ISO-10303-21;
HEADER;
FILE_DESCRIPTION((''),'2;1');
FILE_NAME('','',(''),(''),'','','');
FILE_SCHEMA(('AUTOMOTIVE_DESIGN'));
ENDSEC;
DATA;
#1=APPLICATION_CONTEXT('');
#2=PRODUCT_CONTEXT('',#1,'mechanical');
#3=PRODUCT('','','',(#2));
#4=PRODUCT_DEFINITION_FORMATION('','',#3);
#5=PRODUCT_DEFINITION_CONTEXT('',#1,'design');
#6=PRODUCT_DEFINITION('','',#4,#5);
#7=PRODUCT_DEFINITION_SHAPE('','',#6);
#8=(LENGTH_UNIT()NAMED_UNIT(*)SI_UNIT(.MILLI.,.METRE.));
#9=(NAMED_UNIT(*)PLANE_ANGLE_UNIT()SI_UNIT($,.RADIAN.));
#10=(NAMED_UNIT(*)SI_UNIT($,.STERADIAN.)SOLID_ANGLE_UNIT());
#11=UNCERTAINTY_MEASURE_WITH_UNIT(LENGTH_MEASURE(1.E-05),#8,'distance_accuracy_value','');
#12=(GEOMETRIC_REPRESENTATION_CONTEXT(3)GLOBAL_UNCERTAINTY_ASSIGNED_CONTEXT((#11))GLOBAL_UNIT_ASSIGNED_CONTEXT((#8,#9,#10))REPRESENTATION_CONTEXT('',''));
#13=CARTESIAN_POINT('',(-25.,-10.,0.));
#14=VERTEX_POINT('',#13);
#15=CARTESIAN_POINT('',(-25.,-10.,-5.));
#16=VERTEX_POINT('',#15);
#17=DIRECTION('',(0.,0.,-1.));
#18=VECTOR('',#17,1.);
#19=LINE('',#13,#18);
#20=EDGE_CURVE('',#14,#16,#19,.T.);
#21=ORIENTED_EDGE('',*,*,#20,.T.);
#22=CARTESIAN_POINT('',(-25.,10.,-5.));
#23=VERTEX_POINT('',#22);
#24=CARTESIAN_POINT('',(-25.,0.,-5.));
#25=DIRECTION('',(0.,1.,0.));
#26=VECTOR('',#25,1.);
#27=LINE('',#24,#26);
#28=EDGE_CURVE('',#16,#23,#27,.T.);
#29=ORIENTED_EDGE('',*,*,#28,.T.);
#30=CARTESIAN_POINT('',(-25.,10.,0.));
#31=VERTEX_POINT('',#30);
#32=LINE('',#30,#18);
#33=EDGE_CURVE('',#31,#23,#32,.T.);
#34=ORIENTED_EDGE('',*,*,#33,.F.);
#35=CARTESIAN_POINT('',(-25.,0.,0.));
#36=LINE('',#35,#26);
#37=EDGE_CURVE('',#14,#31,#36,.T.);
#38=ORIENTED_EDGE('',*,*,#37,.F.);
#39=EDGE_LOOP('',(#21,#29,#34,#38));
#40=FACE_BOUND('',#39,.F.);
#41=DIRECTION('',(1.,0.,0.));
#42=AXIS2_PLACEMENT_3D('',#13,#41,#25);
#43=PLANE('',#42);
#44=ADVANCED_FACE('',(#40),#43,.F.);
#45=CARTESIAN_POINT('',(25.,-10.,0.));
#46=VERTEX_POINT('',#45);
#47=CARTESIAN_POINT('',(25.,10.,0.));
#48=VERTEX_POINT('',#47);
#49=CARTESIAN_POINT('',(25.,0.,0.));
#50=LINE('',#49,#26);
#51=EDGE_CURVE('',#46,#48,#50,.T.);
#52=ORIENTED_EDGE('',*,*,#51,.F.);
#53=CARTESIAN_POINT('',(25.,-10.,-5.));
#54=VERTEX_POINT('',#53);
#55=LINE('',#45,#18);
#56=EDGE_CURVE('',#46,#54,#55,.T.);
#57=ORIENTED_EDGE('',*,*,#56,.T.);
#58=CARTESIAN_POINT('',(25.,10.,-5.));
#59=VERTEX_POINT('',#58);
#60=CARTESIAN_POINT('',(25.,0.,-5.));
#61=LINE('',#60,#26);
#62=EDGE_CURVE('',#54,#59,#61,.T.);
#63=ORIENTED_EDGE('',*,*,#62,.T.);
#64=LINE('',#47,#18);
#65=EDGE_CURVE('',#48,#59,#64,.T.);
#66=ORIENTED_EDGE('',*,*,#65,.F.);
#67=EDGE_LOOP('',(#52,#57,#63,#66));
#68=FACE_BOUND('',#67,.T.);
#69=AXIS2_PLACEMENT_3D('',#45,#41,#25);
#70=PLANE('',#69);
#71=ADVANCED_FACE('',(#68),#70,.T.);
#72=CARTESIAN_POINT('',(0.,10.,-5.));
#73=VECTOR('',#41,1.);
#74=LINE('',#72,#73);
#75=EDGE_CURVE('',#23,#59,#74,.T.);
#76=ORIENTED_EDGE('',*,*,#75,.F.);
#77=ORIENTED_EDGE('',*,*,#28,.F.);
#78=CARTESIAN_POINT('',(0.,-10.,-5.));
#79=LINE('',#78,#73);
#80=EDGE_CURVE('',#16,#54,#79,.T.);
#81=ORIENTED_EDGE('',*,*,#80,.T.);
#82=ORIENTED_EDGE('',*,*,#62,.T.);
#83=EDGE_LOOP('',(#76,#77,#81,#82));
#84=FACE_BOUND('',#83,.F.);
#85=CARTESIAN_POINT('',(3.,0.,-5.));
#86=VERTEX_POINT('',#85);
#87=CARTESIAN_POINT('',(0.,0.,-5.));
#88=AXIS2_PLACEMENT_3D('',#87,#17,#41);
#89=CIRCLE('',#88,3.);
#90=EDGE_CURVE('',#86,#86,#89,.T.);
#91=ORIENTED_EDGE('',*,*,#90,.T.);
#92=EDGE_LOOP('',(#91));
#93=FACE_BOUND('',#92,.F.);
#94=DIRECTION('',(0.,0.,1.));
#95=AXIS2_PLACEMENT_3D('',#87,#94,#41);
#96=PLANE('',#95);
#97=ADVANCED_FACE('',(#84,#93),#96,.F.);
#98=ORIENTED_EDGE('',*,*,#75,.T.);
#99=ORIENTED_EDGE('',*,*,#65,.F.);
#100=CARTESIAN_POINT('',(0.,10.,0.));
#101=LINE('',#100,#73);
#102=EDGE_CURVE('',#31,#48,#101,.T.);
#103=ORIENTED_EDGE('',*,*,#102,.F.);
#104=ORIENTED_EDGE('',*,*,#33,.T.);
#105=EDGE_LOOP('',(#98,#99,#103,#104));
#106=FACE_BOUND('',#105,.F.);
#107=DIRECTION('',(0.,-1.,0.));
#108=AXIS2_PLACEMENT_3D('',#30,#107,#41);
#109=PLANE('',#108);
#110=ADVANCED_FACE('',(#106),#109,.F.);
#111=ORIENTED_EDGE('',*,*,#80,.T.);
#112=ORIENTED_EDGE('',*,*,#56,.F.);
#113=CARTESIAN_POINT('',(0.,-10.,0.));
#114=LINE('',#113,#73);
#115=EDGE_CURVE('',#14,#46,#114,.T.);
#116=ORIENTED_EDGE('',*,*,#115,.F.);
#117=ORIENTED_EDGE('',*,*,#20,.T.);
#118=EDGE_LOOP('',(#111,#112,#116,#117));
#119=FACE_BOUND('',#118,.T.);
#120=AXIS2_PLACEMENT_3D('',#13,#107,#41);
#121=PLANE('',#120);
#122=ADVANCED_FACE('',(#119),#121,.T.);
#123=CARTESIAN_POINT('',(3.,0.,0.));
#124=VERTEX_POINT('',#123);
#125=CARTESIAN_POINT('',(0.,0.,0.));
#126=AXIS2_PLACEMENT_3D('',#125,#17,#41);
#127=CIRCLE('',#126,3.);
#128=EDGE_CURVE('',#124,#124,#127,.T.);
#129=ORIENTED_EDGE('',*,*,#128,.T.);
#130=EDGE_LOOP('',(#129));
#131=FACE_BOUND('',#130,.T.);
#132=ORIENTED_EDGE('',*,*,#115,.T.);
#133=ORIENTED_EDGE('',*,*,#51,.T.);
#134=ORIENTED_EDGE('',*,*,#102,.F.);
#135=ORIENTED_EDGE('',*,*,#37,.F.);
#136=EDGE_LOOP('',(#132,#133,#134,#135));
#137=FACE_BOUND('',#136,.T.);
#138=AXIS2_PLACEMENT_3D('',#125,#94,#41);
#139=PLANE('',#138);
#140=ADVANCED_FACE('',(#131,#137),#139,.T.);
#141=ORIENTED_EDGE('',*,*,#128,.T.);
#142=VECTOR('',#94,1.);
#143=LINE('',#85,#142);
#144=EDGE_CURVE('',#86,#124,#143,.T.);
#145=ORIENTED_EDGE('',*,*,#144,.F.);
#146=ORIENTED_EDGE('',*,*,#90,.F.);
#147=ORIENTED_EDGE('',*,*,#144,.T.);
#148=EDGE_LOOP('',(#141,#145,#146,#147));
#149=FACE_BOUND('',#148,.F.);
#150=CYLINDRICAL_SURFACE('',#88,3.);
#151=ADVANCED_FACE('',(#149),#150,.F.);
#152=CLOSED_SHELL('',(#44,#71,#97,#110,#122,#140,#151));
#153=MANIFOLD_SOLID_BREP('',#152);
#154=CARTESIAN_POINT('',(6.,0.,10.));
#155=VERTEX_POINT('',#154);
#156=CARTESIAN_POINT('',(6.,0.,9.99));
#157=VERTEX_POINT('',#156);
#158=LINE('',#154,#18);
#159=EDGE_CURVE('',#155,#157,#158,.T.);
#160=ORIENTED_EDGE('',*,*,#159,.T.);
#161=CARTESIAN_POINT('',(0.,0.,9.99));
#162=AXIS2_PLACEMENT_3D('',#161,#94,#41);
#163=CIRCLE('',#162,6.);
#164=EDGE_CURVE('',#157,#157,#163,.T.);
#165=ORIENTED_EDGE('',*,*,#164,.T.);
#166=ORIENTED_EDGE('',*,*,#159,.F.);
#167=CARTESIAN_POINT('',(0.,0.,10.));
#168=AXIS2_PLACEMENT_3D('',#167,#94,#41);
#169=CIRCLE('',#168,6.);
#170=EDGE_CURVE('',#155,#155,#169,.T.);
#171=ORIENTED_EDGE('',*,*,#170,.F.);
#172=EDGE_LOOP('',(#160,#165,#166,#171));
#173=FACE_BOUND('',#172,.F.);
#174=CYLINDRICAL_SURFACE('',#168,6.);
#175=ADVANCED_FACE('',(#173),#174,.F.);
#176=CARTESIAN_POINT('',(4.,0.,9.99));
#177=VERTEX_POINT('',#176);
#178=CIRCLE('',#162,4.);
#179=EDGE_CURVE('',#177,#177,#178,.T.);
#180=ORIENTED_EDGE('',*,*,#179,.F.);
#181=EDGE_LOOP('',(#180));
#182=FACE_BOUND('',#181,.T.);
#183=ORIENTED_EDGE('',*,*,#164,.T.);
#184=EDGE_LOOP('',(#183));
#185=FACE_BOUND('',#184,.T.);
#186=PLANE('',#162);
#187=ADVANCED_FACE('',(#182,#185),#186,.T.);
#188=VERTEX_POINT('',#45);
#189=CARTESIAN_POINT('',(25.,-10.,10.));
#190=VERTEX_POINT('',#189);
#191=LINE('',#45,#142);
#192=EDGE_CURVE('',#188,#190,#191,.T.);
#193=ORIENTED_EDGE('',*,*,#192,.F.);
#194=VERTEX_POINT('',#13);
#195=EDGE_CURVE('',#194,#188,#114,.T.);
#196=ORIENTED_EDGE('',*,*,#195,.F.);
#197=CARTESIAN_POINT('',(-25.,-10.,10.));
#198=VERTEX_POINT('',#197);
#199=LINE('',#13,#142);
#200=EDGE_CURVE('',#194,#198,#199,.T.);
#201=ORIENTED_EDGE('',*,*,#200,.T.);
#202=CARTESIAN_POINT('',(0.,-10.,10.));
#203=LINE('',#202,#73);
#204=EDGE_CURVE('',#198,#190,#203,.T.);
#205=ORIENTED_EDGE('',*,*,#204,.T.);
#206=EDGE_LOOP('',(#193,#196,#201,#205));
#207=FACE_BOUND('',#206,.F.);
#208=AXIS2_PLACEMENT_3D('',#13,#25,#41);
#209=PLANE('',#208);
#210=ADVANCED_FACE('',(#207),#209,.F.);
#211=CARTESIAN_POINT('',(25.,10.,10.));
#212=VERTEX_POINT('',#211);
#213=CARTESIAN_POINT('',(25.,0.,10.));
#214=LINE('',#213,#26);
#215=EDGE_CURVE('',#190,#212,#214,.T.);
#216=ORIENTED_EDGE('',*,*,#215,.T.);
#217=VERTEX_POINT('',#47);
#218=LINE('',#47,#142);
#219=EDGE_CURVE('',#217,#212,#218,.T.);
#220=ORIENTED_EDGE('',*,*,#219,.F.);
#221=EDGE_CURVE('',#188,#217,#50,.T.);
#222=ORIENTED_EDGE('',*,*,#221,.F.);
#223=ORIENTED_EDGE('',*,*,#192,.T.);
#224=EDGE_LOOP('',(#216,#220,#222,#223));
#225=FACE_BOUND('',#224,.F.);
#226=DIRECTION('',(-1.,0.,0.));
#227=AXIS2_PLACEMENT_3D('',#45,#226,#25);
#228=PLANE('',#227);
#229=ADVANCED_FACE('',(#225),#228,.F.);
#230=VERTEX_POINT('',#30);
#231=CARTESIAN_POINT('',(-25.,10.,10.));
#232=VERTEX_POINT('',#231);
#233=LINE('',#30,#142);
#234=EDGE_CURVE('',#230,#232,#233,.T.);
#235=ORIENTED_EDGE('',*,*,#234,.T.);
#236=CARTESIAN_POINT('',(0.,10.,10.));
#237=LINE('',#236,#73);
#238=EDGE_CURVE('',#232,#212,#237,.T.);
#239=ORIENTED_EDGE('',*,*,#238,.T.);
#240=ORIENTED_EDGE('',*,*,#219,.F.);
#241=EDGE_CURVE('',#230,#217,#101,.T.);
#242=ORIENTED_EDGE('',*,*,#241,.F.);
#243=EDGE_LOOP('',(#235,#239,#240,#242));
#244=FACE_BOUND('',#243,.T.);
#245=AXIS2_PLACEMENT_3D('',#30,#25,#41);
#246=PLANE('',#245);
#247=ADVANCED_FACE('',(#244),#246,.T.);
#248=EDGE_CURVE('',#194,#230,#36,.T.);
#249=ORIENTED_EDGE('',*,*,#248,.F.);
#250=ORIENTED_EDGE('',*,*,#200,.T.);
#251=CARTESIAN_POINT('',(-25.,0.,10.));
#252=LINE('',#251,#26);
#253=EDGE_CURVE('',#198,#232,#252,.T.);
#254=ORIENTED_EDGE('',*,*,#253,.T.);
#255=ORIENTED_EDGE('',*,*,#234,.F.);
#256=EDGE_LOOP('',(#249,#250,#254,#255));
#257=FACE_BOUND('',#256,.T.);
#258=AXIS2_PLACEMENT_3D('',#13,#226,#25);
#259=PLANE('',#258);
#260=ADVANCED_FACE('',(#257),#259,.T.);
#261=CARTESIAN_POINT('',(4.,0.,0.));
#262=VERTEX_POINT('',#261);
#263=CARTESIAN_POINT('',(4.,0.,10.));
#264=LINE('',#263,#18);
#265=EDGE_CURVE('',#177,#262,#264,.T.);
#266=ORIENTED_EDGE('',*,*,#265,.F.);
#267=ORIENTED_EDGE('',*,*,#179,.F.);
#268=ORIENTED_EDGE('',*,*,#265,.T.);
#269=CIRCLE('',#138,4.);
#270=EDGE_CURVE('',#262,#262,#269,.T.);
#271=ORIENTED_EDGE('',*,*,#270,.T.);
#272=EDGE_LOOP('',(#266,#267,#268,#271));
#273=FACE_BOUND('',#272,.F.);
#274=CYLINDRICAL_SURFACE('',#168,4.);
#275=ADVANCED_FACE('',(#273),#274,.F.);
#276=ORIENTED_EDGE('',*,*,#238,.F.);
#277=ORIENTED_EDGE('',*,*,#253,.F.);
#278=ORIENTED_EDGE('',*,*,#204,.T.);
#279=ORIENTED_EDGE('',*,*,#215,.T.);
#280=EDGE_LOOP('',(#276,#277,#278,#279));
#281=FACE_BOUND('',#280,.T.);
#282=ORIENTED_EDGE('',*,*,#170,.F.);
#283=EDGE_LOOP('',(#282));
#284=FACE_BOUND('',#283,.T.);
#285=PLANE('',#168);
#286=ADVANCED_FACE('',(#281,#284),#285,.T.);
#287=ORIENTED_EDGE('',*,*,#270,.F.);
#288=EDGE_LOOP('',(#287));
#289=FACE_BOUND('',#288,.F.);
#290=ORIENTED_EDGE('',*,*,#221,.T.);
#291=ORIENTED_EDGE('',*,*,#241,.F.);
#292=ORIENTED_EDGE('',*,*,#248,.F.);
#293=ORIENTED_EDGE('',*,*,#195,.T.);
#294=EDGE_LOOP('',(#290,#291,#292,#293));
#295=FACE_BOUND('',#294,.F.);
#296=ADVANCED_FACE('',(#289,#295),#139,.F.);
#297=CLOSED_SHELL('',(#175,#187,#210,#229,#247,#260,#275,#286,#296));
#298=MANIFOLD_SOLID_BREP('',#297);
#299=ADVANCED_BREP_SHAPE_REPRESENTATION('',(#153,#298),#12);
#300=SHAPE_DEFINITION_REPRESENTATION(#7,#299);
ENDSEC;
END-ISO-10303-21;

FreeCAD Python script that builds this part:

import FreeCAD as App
import Part
import Sketcher


def add_polygon(sketch, points):
    """Adds a closed chain of lines whose ends are joined by coincident constraints."""
    first, n = sketch.GeometryCount, len(points)
    for a, b in zip(points, points[1:] + points[:1]):
        sketch.addGeometry(Part.LineSegment(App.Vector(*a, 0), App.Vector(*b, 0)), False)
    for i in range(n):
        sketch.addConstraint(Sketcher.Constraint("Coincident", first + i, 2, first + (i + 1) % n, 1))

doc = App.newDocument("Part")
params = doc.addObject("Spreadsheet::Sheet", "Params")
for row, (alias, value) in enumerate([
    ("sketch1_width", "50 mm"),
    ("sketch1_height", "20 mm"),
    ("pad1_length", "10 mm"),
    ("sketch2_diameter", "8 mm"),
    ("sketch3_diameter", "12 mm"),
    ("pocket2_length", "0.01 mm"),
    ("sketch4_width", "50 mm"),
    ("sketch4_height", "20 mm"),
    ("pad2_length", "5 mm"),
    ("sketch5_diameter", "6 mm"),
], start=1):
    params.set(f"A{row}", alias)
    params.set(f"B{row}", "=" + value)
    params.setAlias(f"B{row}", alias)

body = doc.addObject("PartDesign::Body", "Body")

sketch1 = doc.addObject("Sketcher::SketchObject", "Sketch")
body.addObject(sketch1)
sketch1.AttachmentSupport = (doc.XY_Plane, [""])
sketch1.MapMode = "FlatFace"
add_polygon(sketch1, [(-25, 10), (-25, -10), (25, -10), (25, 10)])
sketch1.addConstraint([
    Sketcher.Constraint("Vertical", 0),
    Sketcher.Constraint("Horizontal", 1),
    Sketcher.Constraint("Vertical", 2),
    Sketcher.Constraint("Horizontal", 3),
    Sketcher.Constraint("Symmetric", 0, 2, 2, 2, -1, 1),
    Sketcher.Constraint("DistanceX", 1, 1, 1, 2, 50.0),
    Sketcher.Constraint("DistanceY", 0, 2, 0, 1, 20.0),
])
sketch1.setExpression("Constraints[9]", "Params.sketch1_width")
sketch1.setExpression("Constraints[10]", "Params.sketch1_height")
pad1 = doc.addObject("PartDesign::Pad", "Pad")
body.addObject(pad1)
pad1.Profile = sketch1
pad1.setExpression("Length", "Params.pad1_length")

sketch2 = doc.addObject("Sketcher::SketchObject", "Sketch001")
body.addObject(sketch2)
sketch2.AttachmentSupport = (doc.XY_Plane, [""])
sketch2.MapMode = "FlatFace"
sketch2.AttachmentOffset = App.Placement(App.Vector(0, 0, 10), App.Rotation())
sketch2.addGeometry(Part.Circle(App.Vector(0, 0, 0), App.Vector(0, 0, 1), 4), False)
sketch2.addConstraint([
    Sketcher.Constraint("Coincident", 0, 3, -1, 1),
    Sketcher.Constraint("Diameter", 0, 8.0),
])
sketch2.setExpression("Constraints[1]", "Params.sketch2_diameter")
pocket1 = doc.addObject("PartDesign::Pocket", "Pocket")
body.addObject(pocket1)
pocket1.Profile = sketch2
pocket1.Type = "ThroughAll"

sketch3 = doc.addObject("Sketcher::SketchObject", "Sketch002")
body.addObject(sketch3)
sketch3.AttachmentSupport = (doc.XY_Plane, [""])
sketch3.MapMode = "FlatFace"
sketch3.AttachmentOffset = App.Placement(App.Vector(0, 0, 10), App.Rotation())
sketch3.addGeometry(Part.Circle(App.Vector(0, 0, 0), App.Vector(0, 0, 1), 6), False)
sketch3.addConstraint([
    Sketcher.Constraint("Coincident", 0, 3, -1, 1),
    Sketcher.Constraint("Diameter", 0, 12.0),
])
sketch3.setExpression("Constraints[1]", "Params.sketch3_diameter")
pocket2 = doc.addObject("PartDesign::Pocket", "Pocket001")
body.addObject(pocket2)
pocket2.Profile = sketch3
pocket2.setExpression("Length", "Params.pocket2_length")
body2 = doc.addObject("PartDesign::Body", "Body001")

sketch4 = doc.addObject("Sketcher::SketchObject", "Sketch003")
body2.addObject(sketch4)
sketch4.AttachmentSupport = (doc.getObject("XY_Plane001"), [""])
sketch4.MapMode = "FlatFace"
add_polygon(sketch4, [(-25, 10), (-25, -10), (25, -10), (25, 10)])
sketch4.addConstraint([
    Sketcher.Constraint("Vertical", 0),
    Sketcher.Constraint("Horizontal", 1),
    Sketcher.Constraint("Vertical", 2),
    Sketcher.Constraint("Horizontal", 3),
    Sketcher.Constraint("Symmetric", 0, 2, 2, 2, -1, 1),
    Sketcher.Constraint("DistanceX", 1, 1, 1, 2, 50.0),
    Sketcher.Constraint("DistanceY", 0, 2, 0, 1, 20.0),
])
sketch4.setExpression("Constraints[9]", "Params.sketch4_width")
sketch4.setExpression("Constraints[10]", "Params.sketch4_height")
pad2 = doc.addObject("PartDesign::Pad", "Pad001")
body2.addObject(pad2)
pad2.Profile = sketch4
pad2.setExpression("Length", "Params.pad2_length")
pad2.Reversed = True

sketch5 = doc.addObject("Sketcher::SketchObject", "Sketch004")
body2.addObject(sketch5)
sketch5.AttachmentSupport = (doc.getObject("XY_Plane001"), [""])
sketch5.MapMode = "FlatFace"
sketch5.AttachmentOffset = App.Placement(App.Vector(0, 0, -5), App.Rotation())
sketch5.addGeometry(Part.Circle(App.Vector(0, 0, 0), App.Vector(0, 0, 1), 3), False)
sketch5.addConstraint([
    Sketcher.Constraint("Coincident", 0, 3, -1, 1),
    Sketcher.Constraint("Diameter", 0, 6.0),
])
sketch5.setExpression("Constraints[1]", "Params.sketch5_diameter")
pocket3 = doc.addObject("PartDesign::Pocket", "Pocket002")
body2.addObject(pocket3)
pocket3.Profile = sketch5
pocket3.Type = "ThroughAll"
pocket3.Reversed = True

doc.recompute()
